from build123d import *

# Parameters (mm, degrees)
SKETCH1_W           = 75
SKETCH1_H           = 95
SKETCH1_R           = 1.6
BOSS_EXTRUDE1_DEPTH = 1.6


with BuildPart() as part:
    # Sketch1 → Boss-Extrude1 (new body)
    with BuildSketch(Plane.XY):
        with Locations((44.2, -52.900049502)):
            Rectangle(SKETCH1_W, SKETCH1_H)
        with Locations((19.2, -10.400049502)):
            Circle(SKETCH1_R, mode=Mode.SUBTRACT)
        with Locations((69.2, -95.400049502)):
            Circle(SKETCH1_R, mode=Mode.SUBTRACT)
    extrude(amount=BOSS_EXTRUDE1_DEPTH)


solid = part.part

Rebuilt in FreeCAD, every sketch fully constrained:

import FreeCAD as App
import Part
import Sketcher
from FreeCAD import Vector

doc = App.newDocument("Part")
body = doc.addObject("PartDesign::Body", "Body")

# Sketch on XY plane
sketch1 = body.newObject("Sketcher::SketchObject", "Sketch")
sketch1.AttachmentSupport = (doc.getObject("XY_Plane"), [""])
sketch1.MapMode = "FlatFace"
sketch1.addGeometry(Part.LineSegment(Vector(6.7, -5.40005, 0), Vector(6.7, -100.40005, 0)), False)
sketch1.addGeometry(Part.LineSegment(Vector(6.7, -100.40005, 0), Vector(81.7, -100.40005, 0)), False)
sketch1.addGeometry(Part.LineSegment(Vector(81.7, -100.40005, 0), Vector(81.7, -5.40005, 0)), False)
sketch1.addGeometry(Part.LineSegment(Vector(81.7, -5.40005, 0), Vector(6.7, -5.40005, 0)), False)
sketch1.addGeometry(Part.Circle(Vector(69.2, -95.40005, 0), Vector(0, 0, 1), 1.6), False)
sketch1.addGeometry(Part.Circle(Vector(19.2, -10.40005, 0), Vector(0, 0, 1), 1.6), False)
sketch1.addConstraint(Sketcher.Constraint("Coincident", 0, 2, 1, 1))
sketch1.addConstraint(Sketcher.Constraint("Coincident", 1, 2, 2, 1))
sketch1.addConstraint(Sketcher.Constraint("Coincident", 2, 2, 3, 1))
sketch1.addConstraint(Sketcher.Constraint("Coincident", 3, 2, 0, 1))
sketch1.addConstraint(Sketcher.Constraint("Vertical", 0))
sketch1.addConstraint(Sketcher.Constraint("Horizontal", 1))
sketch1.addConstraint(Sketcher.Constraint("Vertical", 2))
sketch1.addConstraint(Sketcher.Constraint("Horizontal", 3))
sketch1.addConstraint(Sketcher.Constraint("Equal", 4, 5))
sketch1.addConstraint(Sketcher.Constraint("Diameter", 4, 3.2))
sketch1.addConstraint(Sketcher.Constraint("DistanceX", 1, 1, 1, 2, 75.0))
sketch1.addConstraint(Sketcher.Constraint("DistanceY", 0, 2, 0, 1, 95.0))
sketch1.addConstraint(Sketcher.Constraint("DistanceX", 5, 3, 4, 3, 50.0))
sketch1.addConstraint(Sketcher.Constraint("DistanceY", 4, 3, 5, 3, 85.0))
sketch1.addConstraint(Sketcher.Constraint("DistanceY", 0, 2, 4, 3, 5.0))
sketch1.addConstraint(Sketcher.Constraint("DistanceX", -1, 1, 4, 3, 69.2))
sketch1.addConstraint(Sketcher.Constraint("DistanceX", -1, 1, 0, 2, 6.7))
sketch1.addConstraint(Sketcher.Constraint("DistanceY", 4, 3, -1, 1, 95.40005))
pad1 = body.newObject("PartDesign::Pad", "Pad")
pad1.Profile = sketch1
pad1.Length = 1.6

doc.recompute()
